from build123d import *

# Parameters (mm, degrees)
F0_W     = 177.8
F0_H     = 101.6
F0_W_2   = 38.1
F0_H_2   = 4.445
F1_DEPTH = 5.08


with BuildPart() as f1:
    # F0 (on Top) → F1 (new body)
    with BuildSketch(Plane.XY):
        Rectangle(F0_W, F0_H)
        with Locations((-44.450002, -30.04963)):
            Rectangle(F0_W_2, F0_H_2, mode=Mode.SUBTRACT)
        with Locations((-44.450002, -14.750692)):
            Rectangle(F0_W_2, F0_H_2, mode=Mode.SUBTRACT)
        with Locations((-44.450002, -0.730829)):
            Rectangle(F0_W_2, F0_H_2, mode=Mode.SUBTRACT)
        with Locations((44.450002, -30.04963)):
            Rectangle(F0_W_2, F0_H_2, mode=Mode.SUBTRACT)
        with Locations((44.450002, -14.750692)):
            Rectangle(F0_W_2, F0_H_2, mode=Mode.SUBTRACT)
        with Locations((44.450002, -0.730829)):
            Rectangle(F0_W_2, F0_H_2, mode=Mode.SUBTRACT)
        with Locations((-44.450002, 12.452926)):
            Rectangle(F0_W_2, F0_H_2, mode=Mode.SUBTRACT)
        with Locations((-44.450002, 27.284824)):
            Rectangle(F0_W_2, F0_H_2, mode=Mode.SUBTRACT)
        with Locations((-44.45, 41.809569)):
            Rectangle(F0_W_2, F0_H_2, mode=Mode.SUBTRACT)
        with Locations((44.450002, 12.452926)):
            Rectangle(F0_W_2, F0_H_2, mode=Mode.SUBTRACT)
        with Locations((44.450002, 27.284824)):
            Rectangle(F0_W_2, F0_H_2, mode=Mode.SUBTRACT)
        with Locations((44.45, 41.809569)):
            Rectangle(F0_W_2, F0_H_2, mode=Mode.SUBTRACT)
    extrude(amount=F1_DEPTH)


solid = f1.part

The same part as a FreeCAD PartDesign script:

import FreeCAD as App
import Part
import Sketcher
from FreeCAD import Vector
Q = App.Units.Quantity

doc = App.newDocument("Part")
body = doc.addObject("PartDesign::Body", "Body")

# Sketch on XY plane
sketch1 = body.newObject("Sketcher::SketchObject", "Sketch")
sketch1.AttachmentSupport = (doc.getObject("XY_Plane"), [""])
sketch1.MapMode = "FlatFace"
sketch1.addGeometry([
    Part.LineSegment(Vector(-88.9, 50.8, 0), Vector(-88.9, -50.8, 0)),  # 0
    Part.LineSegment(Vector(-88.9, -50.8, 0), Vector(88.9, -50.8, 0)),  # 1
    Part.LineSegment(Vector(88.9, -50.8, 0), Vector(88.9, 50.8, 0)),  # 2
    Part.LineSegment(Vector(88.9, 50.8, 0), Vector(-88.9, 50.8, 0)),  # 3
    Part.LineSegment(Vector(-25.4, -32.3, 0), Vector(-63.5, -32.3, 0)),  # 4
    Part.LineSegment(Vector(-63.5, -32.3, 0), Vector(-63.5, -27.8, 0)),  # 5
    Part.LineSegment(Vector(-63.5, -27.8, 0), Vector(-25.4, -27.8, 0)),  # 6
    Part.LineSegment(Vector(-25.4, -27.8, 0), Vector(-25.4, -32.3, 0)),  # 7
    Part.LineSegment(Vector(-25.4, -17, 0), Vector(-63.5, -17, 0)),  # 8
    Part.LineSegment(Vector(-63.5, -17, 0), Vector(-63.5, -12.5, 0)),  # 9
    Part.LineSegment(Vector(-63.5, -12.5, 0), Vector(-25.4, -12.5, 0)),  # 10
    Part.LineSegment(Vector(-25.4, -12.5, 0), Vector(-25.4, -17, 0)),  # 11
    Part.LineSegment(Vector(-25.4, -3, 0), Vector(-63.5, -3, 0)),  # 12
    Part.LineSegment(Vector(-63.5, -3, 0), Vector(-63.5, 1.5, 0)),  # 13
    Part.LineSegment(Vector(-63.5, 1.5, 0), Vector(-25.4, 1.5, 0)),  # 14
    Part.LineSegment(Vector(-25.4, 1.5, 0), Vector(-25.4, -3, 0)),  # 15
    Part.LineSegment(Vector(63.5, -32.3, 0), Vector(25.4, -32.3, 0)),  # 16
    Part.LineSegment(Vector(25.4, -32.3, 0), Vector(25.4, -27.8, 0)),  # 17
    Part.LineSegment(Vector(25.4, -27.8, 0), Vector(63.5, -27.8, 0)),  # 18
    Part.LineSegment(Vector(63.5, -27.8, 0), Vector(63.5, -32.3, 0)),  # 19
    Part.LineSegment(Vector(63.5, -17, 0), Vector(25.4, -17, 0)),  # 20
    Part.LineSegment(Vector(25.4, -17, 0), Vector(25.4, -12.5, 0)),  # 21
    Part.LineSegment(Vector(25.4, -12.5, 0), Vector(63.5, -12.5, 0)),  # 22
    Part.LineSegment(Vector(63.5, -12.5, 0), Vector(63.5, -17, 0)),  # 23
    Part.LineSegment(Vector(63.5, -3, 0), Vector(25.4, -3, 0)),  # 24
    Part.LineSegment(Vector(25.4, -3, 0), Vector(25.4, 1.5, 0)),  # 25
    Part.LineSegment(Vector(25.4, 1.5, 0), Vector(63.5, 1.5, 0)),  # 26
    Part.LineSegment(Vector(63.5, 1.5, 0), Vector(63.5, -3, 0)),  # 27
    Part.LineSegment(Vector(-25.4, 10.2, 0), Vector(-63.5, 10.2, 0)),  # 28
    Part.LineSegment(Vector(-63.5, 10.2, 0), Vector(-63.5, 14.7, 0)),  # 29
    Part.LineSegment(Vector(-63.5, 14.7, 0), Vector(-25.4, 14.7, 0)),  # 30
    Part.LineSegment(Vector(-25.4, 14.7, 0), Vector(-25.4, 10.2, 0)),  # 31
    Part.LineSegment(Vector(-25.4, 25.1, 0), Vector(-63.5, 25.1, 0)),  # 32
    Part.LineSegment(Vector(-63.5, 25.1, 0), Vector(-63.5, 29.5, 0)),  # 33
    Part.LineSegment(Vector(-63.5, 29.5, 0), Vector(-25.4, 29.5, 0)),  # 34
    Part.LineSegment(Vector(-25.4, 29.5, 0), Vector(-25.4, 25.1, 0)),  # 35
    Part.LineSegment(Vector(-25.4, 39.6, 0), Vector(-63.5, 39.6, 0)),  # 36
    Part.LineSegment(Vector(-63.5, 39.6, 0), Vector(-63.5, 44, 0)),  # 37
    Part.LineSegment(Vector(-63.5, 44, 0), Vector(-25.4, 44, 0)),  # 38
    Part.LineSegment(Vector(-25.4, 44, 0), Vector(-25.4, 39.6, 0)),  # 39
    Part.LineSegment(Vector(63.5, 10.2, 0), Vector(25.4, 10.2, 0)),  # 40
    Part.LineSegment(Vector(25.4, 10.2, 0), Vector(25.4, 14.7, 0)),  # 41
    Part.LineSegment(Vector(25.4, 14.7, 0), Vector(63.5, 14.7, 0)),  # 42
    Part.LineSegment(Vector(63.5, 14.7, 0), Vector(63.5, 10.2, 0)),  # 43
    Part.LineSegment(Vector(63.5, 25.1, 0), Vector(25.4, 25.1, 0)),  # 44
    Part.LineSegment(Vector(25.4, 25.1, 0), Vector(25.4, 29.5, 0)),  # 45
    Part.LineSegment(Vector(25.4, 29.5, 0), Vector(63.5, 29.5, 0)),  # 46
    Part.LineSegment(Vector(63.5, 29.5, 0), Vector(63.5, 25.1, 0)),  # 47
    Part.LineSegment(Vector(63.5, 39.6, 0), Vector(25.4, 39.6, 0)),  # 48
    Part.LineSegment(Vector(25.4, 39.6, 0), Vector(25.4, 44, 0)),  # 49
    Part.LineSegment(Vector(25.4, 44, 0), Vector(63.5, 44, 0)),  # 50
    Part.LineSegment(Vector(63.5, 44, 0), Vector(63.5, 39.6, 0)),  # 51
], False)
sketch1.addConstraint([
    Sketcher.Constraint("Coincident", 0, 2, 1, 1),
    Sketcher.Constraint("Coincident", 1, 2, 2, 1),
    Sketcher.Constraint("Coincident", 2, 2, 3, 1),
    Sketcher.Constraint("Coincident", 3, 2, 0, 1),
    Sketcher.Constraint("Coincident", 4, 2, 5, 1),
    Sketcher.Constraint("Coincident", 5, 2, 6, 1),
    Sketcher.Constraint("Coincident", 6, 2, 7, 1),
    Sketcher.Constraint("Coincident", 7, 2, 4, 1),
    Sketcher.Constraint("Coincident", 8, 2, 9, 1),
    Sketcher.Constraint("Coincident", 9, 2, 10, 1),
    Sketcher.Constraint("Coincident", 10, 2, 11, 1),
    Sketcher.Constraint("Coincident", 11, 2, 8, 1),
    Sketcher.Constraint("Coincident", 12, 2, 13, 1),
    Sketcher.Constraint("Coincident", 13, 2, 14, 1),
    Sketcher.Constraint("Coincident", 14, 2, 15, 1),
    Sketcher.Constraint("Coincident", 15, 2, 12, 1),
    Sketcher.Constraint("Coincident", 16, 2, 17, 1),
    Sketcher.Constraint("Coincident", 17, 2, 18, 1),
    Sketcher.Constraint("Coincident", 18, 2, 19, 1),
    Sketcher.Constraint("Coincident", 19, 2, 16, 1),
    Sketcher.Constraint("Coincident", 20, 2, 21, 1),
    Sketcher.Constraint("Coincident", 21, 2, 22, 1),
    Sketcher.Constraint("Coincident", 22, 2, 23, 1),
    Sketcher.Constraint("Coincident", 23, 2, 20, 1),
    Sketcher.Constraint("Coincident", 24, 2, 25, 1),
    Sketcher.Constraint("Coincident", 25, 2, 26, 1),
    Sketcher.Constraint("Coincident", 26, 2, 27, 1),
    Sketcher.Constraint("Coincident", 27, 2, 24, 1),
    Sketcher.Constraint("Coincident", 28, 2, 29, 1),
    Sketcher.Constraint("Coincident", 29, 2, 30, 1),
    Sketcher.Constraint("Coincident", 30, 2, 31, 1),
    Sketcher.Constraint("Coincident", 31, 2, 28, 1),
    Sketcher.Constraint("Coincident", 32, 2, 33, 1),
    Sketcher.Constraint("Coincident", 33, 2, 34, 1),
    Sketcher.Constraint("Coincident", 34, 2, 35, 1),
    Sketcher.Constraint("Coincident", 35, 2, 32, 1),
    Sketcher.Constraint("Coincident", 36, 2, 37, 1),
    Sketcher.Constraint("Coincident", 37, 2, 38, 1),
    Sketcher.Constraint("Coincident", 38, 2, 39, 1),
    Sketcher.Constraint("Coincident", 39, 2, 36, 1),
    Sketcher.Constraint("Coincident", 40, 2, 41, 1),
    Sketcher.Constraint("Coincident", 41, 2, 42, 1),
    Sketcher.Constraint("Coincident", 42, 2, 43, 1),
    Sketcher.Constraint("Coincident", 43, 2, 40, 1),
    Sketcher.Constraint("Coincident", 44, 2, 45, 1),
    Sketcher.Constraint("Coincident", 45, 2, 46, 1),
    Sketcher.Constraint("Coincident", 46, 2, 47, 1),
    Sketcher.Constraint("Coincident", 47, 2, 44, 1),
    Sketcher.Constraint("Coincident", 48, 2, 49, 1),
    Sketcher.Constraint("Coincident", 49, 2, 50, 1),
    Sketcher.Constraint("Coincident", 50, 2, 51, 1),
    Sketcher.Constraint("Coincident", 51, 2, 48, 1),
    Sketcher.Constraint("Vertical", 0),
    Sketcher.Constraint("Horizontal", 1),
    Sketcher.Constraint("Vertical", 2),
    Sketcher.Constraint("Horizontal", 3),
    Sketcher.Constraint("Horizontal", 4),
    Sketcher.Constraint("Vertical", 5),
    Sketcher.Constraint("Horizontal", 6),
    Sketcher.Constraint("Vertical", 7),
    Sketcher.Constraint("Horizontal", 8),
    Sketcher.Constraint("Vertical", 9),
    Sketcher.Constraint("Horizontal", 10),
    Sketcher.Constraint("Vertical", 11),
    Sketcher.Constraint("Horizontal", 12),
    Sketcher.Constraint("Vertical", 13),
    Sketcher.Constraint("Horizontal", 14),
    Sketcher.Constraint("Vertical", 15),
    Sketcher.Constraint("Horizontal", 16),
    Sketcher.Constraint("Vertical", 17),
    Sketcher.Constraint("Horizontal", 18),
    Sketcher.Constraint("Vertical", 19),
    Sketcher.Constraint("Horizontal", 20),
    Sketcher.Constraint("Vertical", 21),
    Sketcher.Constraint("Horizontal", 22),
    Sketcher.Constraint("Vertical", 23),
    Sketcher.Constraint("Horizontal", 24),
    Sketcher.Constraint("Vertical", 25),
    Sketcher.Constraint("Horizontal", 26),
    Sketcher.Constraint("Vertical", 27),
    Sketcher.Constraint("Horizontal", 28),
    Sketcher.Constraint("Vertical", 29),
    Sketcher.Constraint("Horizontal", 30),
    Sketcher.Constraint("Vertical", 31),
    Sketcher.Constraint("Horizontal", 32),
    Sketcher.Constraint("Vertical", 33),
    Sketcher.Constraint("Horizontal", 34),
    Sketcher.Constraint("Vertical", 35),
    Sketcher.Constraint("Horizontal", 36),
    Sketcher.Constraint("Vertical", 37),
    Sketcher.Constraint("Horizontal", 38),
    Sketcher.Constraint("Vertical", 39),
    Sketcher.Constraint("Horizontal", 40),
    Sketcher.Constraint("Vertical", 41),
    Sketcher.Constraint("Horizontal", 42),
    Sketcher.Constraint("Vertical", 43),
    Sketcher.Constraint("Horizontal", 44),
    Sketcher.Constraint("Vertical", 45),
    Sketcher.Constraint("Horizontal", 46),
    Sketcher.Constraint("Vertical", 47),
    Sketcher.Constraint("Horizontal", 48),
    Sketcher.Constraint("Vertical", 49),
    Sketcher.Constraint("Horizontal", 50),
    Sketcher.Constraint("Vertical", 51),
    Sketcher.Constraint("Symmetric", 0, 2, 2, 2, -1, 1),
    Sketcher.Constraint("Symmetric", 7, 2, 16, 2, -2),
    Sketcher.Constraint("Symmetric", 5, 2, 18, 2, -2),
    Sketcher.Constraint("Symmetric", 11, 2, 20, 2, -2),
    Sketcher.Constraint("Symmetric", 9, 2, 22, 2, -2),
    Sketcher.Constraint("Symmetric", 15, 2, 24, 2, -2),
    Sketcher.Constraint("Symmetric", 13, 2, 26, 2, -2),
    Sketcher.Constraint("Symmetric", 31, 2, 40, 2, -2),
    Sketcher.Constraint("Symmetric", 29, 2, 42, 2, -2),
    Sketcher.Constraint("Symmetric", 35, 2, 44, 2, -2),
    Sketcher.Constraint("Symmetric", 33, 2, 46, 2, -2),
    Sketcher.Constraint("Symmetric", 39, 2, 48, 2, -2),
    Sketcher.Constraint("Symmetric", 37, 2, 50, 2, -2),
    Sketcher.Constraint("Vertical", 5, 2, 8, 2),
    Sketcher.Constraint("Vertical", 7, 2, 10, 2),
    Sketcher.Constraint("Vertical", 9, 2, 12, 2),
    Sketcher.Constraint("Vertical", 11, 2, 14, 2),
    Sketcher.Constraint("Vertical", 13, 2, 28, 2),
    Sketcher.Constraint("Vertical", 15, 2, 30, 2),
    Sketcher.Constraint("Vertical", 29, 2, 32, 2),
    Sketcher.Constraint("Vertical", 31, 2, 34, 2),
    Sketcher.Constraint("Equal", 34, 36),
    Sketcher.Constraint("Equal", 7, 9),
    Sketcher.Constraint("Equal", 11, 13),
    Sketcher.Constraint("Equal", 27, 29),
    Sketcher.Constraint("Equal", 31, 33),
    Sketcher.Constraint("Equal", 35, 37),
    Sketcher.Constraint("DistanceX", 1, 1, 1, 2, Q("7 in")),
    Sketcher.Constraint("DistanceY", 0, 2, 0, 1, Q("4 in")),
    Sketcher.Constraint("DistanceX", 4, 2, 4, 1, Q("1.5 in")),
    Sketcher.Constraint("DistanceX", 6, 2, -1, 1, Q("1.0000001 in")),
    Sketcher.Constraint("DistanceX", 38, 2, -1, 1, Q("1 in")),
    Sketcher.Constraint("DistanceY", 5, 1, 5, 2, Q("0.175 in")),
    Sketcher.Constraint("DistanceY", 5, 2, 12, 2, 24.873801),
    Sketcher.Constraint("DistanceY", 28, 2, 32, 2, 14.831898),
    Sketcher.Constraint("DistanceY", 25, 2, 48, 2, 38.095398),
    Sketcher.Constraint("DistanceY", 4, 2, -1, 1, 32.27213),
    Sketcher.Constraint("DistanceY", 8, 2, -1, 1, 16.973192),
    Sketcher.Constraint("DistanceY", -1, 1, 28, 2, 10.230426),
])
pad1 = body.newObject("PartDesign::Pad", "Pad")
pad1.Profile = sketch1
pad1.Length = Q("0.2 in")

doc.recompute()
